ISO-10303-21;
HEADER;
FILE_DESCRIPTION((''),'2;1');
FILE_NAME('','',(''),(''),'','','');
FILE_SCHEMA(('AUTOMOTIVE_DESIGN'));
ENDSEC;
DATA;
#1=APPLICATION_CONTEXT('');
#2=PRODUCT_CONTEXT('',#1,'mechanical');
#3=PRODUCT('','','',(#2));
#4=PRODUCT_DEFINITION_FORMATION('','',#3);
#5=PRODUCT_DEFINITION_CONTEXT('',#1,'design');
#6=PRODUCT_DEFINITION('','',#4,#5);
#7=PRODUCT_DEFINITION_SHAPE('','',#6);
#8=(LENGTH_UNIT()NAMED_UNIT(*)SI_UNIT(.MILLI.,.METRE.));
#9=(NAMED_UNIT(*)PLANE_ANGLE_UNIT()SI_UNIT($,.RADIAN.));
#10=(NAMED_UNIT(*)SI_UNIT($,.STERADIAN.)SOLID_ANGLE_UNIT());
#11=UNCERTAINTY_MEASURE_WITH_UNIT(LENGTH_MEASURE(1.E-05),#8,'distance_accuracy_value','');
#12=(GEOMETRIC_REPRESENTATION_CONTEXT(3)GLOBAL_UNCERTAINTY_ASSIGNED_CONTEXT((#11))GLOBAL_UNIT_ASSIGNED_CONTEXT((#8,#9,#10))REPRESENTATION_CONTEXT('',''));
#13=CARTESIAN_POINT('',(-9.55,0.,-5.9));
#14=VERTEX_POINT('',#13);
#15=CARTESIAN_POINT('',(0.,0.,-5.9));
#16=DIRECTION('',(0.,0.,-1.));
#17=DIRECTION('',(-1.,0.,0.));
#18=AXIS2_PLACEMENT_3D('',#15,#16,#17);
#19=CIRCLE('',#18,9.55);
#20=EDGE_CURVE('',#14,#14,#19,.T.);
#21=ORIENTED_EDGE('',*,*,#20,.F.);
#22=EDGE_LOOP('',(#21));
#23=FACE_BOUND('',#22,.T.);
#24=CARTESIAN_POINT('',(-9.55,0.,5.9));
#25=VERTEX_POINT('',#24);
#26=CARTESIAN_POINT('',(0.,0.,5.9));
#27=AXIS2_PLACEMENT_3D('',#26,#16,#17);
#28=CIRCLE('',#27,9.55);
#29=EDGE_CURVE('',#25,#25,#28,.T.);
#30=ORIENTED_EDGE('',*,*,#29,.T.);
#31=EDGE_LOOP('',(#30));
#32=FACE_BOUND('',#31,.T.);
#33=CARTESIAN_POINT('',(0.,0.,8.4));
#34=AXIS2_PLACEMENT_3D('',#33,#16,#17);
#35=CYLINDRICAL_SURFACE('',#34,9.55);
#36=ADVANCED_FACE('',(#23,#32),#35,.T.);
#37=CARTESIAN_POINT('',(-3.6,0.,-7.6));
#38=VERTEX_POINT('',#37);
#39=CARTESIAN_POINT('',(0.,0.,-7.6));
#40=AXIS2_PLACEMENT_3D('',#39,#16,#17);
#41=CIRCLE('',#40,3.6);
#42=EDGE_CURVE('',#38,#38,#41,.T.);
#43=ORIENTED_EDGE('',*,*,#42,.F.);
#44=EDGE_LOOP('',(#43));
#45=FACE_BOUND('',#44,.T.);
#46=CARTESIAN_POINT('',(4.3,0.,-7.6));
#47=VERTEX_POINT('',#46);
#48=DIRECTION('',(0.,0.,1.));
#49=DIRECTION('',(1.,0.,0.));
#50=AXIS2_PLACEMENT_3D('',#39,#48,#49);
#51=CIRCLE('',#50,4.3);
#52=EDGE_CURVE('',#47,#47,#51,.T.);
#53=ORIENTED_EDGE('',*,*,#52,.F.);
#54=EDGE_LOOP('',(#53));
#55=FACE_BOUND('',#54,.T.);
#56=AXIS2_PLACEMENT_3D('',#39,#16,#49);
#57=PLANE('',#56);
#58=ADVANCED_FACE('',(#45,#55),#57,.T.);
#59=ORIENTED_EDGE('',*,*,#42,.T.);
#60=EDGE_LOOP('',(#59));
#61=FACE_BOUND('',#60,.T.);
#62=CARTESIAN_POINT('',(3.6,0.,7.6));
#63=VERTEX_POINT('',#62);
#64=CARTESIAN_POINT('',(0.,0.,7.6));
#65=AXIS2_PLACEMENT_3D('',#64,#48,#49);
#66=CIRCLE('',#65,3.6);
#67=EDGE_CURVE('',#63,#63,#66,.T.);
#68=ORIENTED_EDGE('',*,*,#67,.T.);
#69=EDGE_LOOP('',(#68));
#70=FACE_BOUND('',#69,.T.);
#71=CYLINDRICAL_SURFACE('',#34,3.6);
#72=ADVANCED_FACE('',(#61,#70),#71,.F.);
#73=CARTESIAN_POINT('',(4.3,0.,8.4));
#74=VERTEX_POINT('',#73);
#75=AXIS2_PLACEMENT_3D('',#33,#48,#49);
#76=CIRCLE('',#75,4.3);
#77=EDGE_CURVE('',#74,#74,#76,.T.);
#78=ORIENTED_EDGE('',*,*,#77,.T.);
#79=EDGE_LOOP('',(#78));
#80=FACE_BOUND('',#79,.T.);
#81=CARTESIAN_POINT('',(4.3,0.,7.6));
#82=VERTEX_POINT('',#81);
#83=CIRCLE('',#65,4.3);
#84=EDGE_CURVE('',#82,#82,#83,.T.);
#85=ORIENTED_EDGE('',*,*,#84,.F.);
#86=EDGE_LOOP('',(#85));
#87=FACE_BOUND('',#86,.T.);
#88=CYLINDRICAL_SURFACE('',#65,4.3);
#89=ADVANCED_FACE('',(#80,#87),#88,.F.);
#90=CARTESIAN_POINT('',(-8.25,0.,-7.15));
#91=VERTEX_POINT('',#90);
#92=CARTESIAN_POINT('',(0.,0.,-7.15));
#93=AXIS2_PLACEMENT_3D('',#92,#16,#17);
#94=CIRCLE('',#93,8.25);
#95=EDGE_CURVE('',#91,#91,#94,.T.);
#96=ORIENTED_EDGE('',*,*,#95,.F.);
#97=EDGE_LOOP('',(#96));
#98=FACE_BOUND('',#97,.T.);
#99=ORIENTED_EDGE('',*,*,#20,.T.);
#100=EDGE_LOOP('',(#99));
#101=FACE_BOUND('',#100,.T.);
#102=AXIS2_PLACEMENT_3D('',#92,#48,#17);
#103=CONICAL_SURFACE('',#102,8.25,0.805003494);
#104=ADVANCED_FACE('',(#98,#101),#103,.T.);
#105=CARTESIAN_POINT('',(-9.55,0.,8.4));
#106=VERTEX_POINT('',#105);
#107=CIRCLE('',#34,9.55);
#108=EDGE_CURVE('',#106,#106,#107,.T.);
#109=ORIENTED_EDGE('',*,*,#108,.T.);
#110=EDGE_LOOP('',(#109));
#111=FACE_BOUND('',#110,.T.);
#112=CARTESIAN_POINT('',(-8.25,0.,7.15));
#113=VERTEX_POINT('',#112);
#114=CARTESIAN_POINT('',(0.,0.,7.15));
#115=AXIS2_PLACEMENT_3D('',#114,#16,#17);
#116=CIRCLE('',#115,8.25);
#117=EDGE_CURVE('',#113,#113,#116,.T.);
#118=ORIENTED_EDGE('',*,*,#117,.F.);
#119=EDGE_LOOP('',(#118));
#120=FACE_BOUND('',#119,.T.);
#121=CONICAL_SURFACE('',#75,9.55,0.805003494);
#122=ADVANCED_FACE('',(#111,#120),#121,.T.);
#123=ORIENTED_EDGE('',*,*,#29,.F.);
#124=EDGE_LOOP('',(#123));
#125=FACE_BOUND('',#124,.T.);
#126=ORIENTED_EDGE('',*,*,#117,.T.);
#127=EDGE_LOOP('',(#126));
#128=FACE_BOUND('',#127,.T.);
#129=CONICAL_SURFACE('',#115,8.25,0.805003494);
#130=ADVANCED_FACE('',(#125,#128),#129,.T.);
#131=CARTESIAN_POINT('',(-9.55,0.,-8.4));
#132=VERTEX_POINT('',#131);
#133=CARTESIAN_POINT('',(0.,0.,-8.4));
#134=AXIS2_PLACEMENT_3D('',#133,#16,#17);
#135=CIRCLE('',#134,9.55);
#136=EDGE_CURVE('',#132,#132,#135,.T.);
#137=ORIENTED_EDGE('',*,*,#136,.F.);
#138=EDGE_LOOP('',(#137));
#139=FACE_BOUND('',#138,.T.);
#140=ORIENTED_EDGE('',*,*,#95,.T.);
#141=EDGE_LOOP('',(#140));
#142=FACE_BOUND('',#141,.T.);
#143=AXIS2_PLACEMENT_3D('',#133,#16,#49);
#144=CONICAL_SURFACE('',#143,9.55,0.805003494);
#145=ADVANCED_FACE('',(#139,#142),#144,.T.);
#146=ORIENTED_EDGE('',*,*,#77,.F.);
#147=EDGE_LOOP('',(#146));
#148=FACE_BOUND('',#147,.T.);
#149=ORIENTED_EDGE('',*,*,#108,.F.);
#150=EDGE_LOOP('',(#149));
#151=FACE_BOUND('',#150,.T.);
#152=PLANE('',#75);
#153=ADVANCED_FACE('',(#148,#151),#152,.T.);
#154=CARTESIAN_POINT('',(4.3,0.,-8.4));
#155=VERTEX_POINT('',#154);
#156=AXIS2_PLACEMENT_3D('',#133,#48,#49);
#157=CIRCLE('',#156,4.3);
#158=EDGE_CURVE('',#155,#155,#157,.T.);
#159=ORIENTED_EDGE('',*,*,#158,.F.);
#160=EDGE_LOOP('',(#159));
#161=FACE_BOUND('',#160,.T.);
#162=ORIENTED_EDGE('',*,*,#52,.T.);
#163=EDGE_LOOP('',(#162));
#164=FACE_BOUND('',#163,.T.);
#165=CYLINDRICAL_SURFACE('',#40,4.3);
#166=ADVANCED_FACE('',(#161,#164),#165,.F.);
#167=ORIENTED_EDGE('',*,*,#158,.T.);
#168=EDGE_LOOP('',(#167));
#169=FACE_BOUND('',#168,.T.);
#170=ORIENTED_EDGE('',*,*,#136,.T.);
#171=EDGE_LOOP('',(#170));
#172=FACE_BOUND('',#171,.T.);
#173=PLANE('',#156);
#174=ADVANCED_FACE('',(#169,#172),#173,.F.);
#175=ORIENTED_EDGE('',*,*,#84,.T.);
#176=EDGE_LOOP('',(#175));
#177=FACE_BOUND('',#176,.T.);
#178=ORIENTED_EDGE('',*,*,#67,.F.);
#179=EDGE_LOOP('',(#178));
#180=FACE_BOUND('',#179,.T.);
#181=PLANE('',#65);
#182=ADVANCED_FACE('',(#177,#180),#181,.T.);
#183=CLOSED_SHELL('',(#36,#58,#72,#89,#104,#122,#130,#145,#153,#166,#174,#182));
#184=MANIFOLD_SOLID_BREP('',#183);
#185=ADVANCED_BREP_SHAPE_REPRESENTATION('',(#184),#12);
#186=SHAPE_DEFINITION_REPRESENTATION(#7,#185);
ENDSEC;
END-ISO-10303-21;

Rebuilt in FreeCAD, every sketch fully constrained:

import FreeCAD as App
import Part
import Sketcher
Q = App.Units.Quantity


def add_polygon(sketch, points):
    """Adds a closed chain of lines whose ends are joined by coincident constraints."""
    first, n = sketch.GeometryCount, len(points)
    for a, b in zip(points, points[1:] + points[:1]):
        sketch.addGeometry(Part.LineSegment(App.Vector(*a, 0), App.Vector(*b, 0)), False)
    for i in range(n):
        sketch.addConstraint(Sketcher.Constraint("Coincident", first + i, 2, first + (i + 1) % n, 1))

doc = App.newDocument("Part")
body = doc.addObject("PartDesign::Body", "Body")

sketch1 = body.newObject("Sketcher::SketchObject", "Sketch")
sketch1.AttachmentSupport = (doc.getObject("XY_Plane"), [""])
sketch1.MapMode = "FlatFace"
sketch1.addGeometry([
    Part.Circle(App.Vector(0, 0, 0), App.Vector(0, 0, 1), 9.55),
    Part.Circle(App.Vector(0, 0, 0), App.Vector(0, 0, 1), 3.6),
], False)
sketch1.addConstraint([
    Sketcher.Constraint("Coincident", 0, 3, -1, 1),
    Sketcher.Constraint("Coincident", 1, 3, -1, 1),
    Sketcher.Constraint("Diameter", 0, Q("19.1 mm")),
    Sketcher.Constraint("Diameter", 1, Q("7.2 mm")),
])
pad1 = body.newObject("PartDesign::Pad", "Pad")
pad1.Profile = sketch1
pad1.Length = 16.8
pad1.Midplane = True

sketch2 = body.newObject("Sketcher::SketchObject", "Sketch001")
sketch2.AttachmentSupport = (doc.getObject("XY_Plane"), [""])
sketch2.MapMode = "FlatFace"
sketch2.AttachmentOffset = App.Placement(App.Vector(0, 0, 8.4), App.Rotation())
sketch2.addGeometry(Part.Circle(App.Vector(0, 0, 0), App.Vector(0, 0, 1), 4.3), False)
sketch2.addConstraint([
    Sketcher.Constraint("Coincident", 0, 3, -1, 1),
    Sketcher.Constraint("Diameter", 0, Q("8.6 mm")),
])
pocket1 = body.newObject("PartDesign::Pocket", "Pocket")
pocket1.Profile = sketch2
pocket1.Length = 0.8

sketch3 = body.newObject("Sketcher::SketchObject", "Sketch002")
sketch3.AttachmentSupport = (doc.getObject("YZ_Plane"), [""])
sketch3.MapMode = "FlatFace"
add_polygon(sketch3, [(9.55, 5.9), (9.55, 8.4), (8.25, 7.15)])
sketch3.addConstraint([
    Sketcher.Constraint("Vertical", 0),
    Sketcher.Constraint("Equal", 1, 2),
    Sketcher.Constraint("DistanceY", 0, 1, 0, 2, Q("2.5 mm")),
    Sketcher.Constraint("DistanceY", -1, 1, 0, 2, Q("8.4 mm")),
    Sketcher.Constraint("DistanceX", 1, 2, 0, 2, Q("1.3 mm")),
    Sketcher.Constraint("DistanceX", -1, 1, 0, 2, Q("9.55 mm")),
])
groove = body.newObject("PartDesign::Groove", "Groove")
groove.Profile = sketch3
groove.ReferenceAxis = (sketch3, ["V_Axis"])
groove.Angle = 360
doc.recompute()

mirrored = body.newObject("PartDesign::Mirrored", "Mirrored")
mirrored.Originals = [pocket1, groove]
mirrored.MirrorPlane = (doc.getObject("XY_Plane"), [""])
body.Tip = mirrored

doc.recompute()
